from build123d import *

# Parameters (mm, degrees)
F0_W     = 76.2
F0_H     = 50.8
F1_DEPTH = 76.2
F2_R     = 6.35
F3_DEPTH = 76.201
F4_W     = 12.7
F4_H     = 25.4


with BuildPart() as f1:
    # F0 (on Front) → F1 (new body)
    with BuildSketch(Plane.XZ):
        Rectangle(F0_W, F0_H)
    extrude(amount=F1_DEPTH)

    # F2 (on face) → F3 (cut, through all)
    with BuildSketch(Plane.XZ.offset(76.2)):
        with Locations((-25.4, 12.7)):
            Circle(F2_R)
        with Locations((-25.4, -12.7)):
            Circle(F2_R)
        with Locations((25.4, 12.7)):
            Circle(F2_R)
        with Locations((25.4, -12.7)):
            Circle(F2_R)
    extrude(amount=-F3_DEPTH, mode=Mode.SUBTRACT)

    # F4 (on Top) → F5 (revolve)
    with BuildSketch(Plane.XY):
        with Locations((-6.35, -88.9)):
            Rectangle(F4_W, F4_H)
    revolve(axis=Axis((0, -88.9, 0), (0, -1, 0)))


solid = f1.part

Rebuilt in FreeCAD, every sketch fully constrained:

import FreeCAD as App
import Part
import Sketcher
from FreeCAD import Vector
Q = App.Units.Quantity

doc = App.newDocument("Part")
body = doc.addObject("PartDesign::Body", "Body")

sketch1 = body.newObject("Sketcher::SketchObject", "Sketch")
sketch1.AttachmentSupport = (doc.getObject("XZ_Plane"), [""])
sketch1.MapMode = "FlatFace"
sketch1.addGeometry([
    Part.LineSegment(Vector(-38, 25, 0), Vector(-38, -25, 0)),
    Part.LineSegment(Vector(-38, -25, 0), Vector(38, -25, 0)),
    Part.LineSegment(Vector(38, -25, 0), Vector(38, 25, 0)),
    Part.LineSegment(Vector(38, 25, 0), Vector(-38, 25, 0)),
], False)
sketch1.addConstraint([
    Sketcher.Constraint("Coincident", 0, 2, 1, 1),
    Sketcher.Constraint("Coincident", 1, 2, 2, 1),
    Sketcher.Constraint("Coincident", 2, 2, 3, 1),
    Sketcher.Constraint("Coincident", 3, 2, 0, 1),
    Sketcher.Constraint("Vertical", 0),
    Sketcher.Constraint("Horizontal", 1),
    Sketcher.Constraint("Vertical", 2),
    Sketcher.Constraint("Horizontal", 3),
    Sketcher.Constraint("Symmetric", 0, 2, 2, 2, -1, 1),
    Sketcher.Constraint("DistanceX", 1, 1, 1, 2, Q("3 in")),
    Sketcher.Constraint("DistanceY", 0, 2, 0, 1, Q("2 in")),
])
pad1 = body.newObject("PartDesign::Pad", "Pad")
pad1.Profile = sketch1
pad1.Length = Q("3 in")

sketch2 = body.newObject("Sketcher::SketchObject", "Sketch001")
sketch2.AttachmentSupport = (doc.getObject("XZ_Plane"), [""])
sketch2.MapMode = "FlatFace"
sketch2.AttachmentOffset = App.Placement(Vector(0, 0, 3 * 25.4), App.Rotation())
sketch2.addGeometry([
    Part.Circle(Vector(-25, 13, 0), Vector(0, 0, 1), 6),
    Part.Circle(Vector(-25, -13, 0), Vector(0, 0, 1), 6),
    Part.Circle(Vector(25, 13, 0), Vector(0, 0, 1), 6),
    Part.Circle(Vector(25, -13, 0), Vector(0, 0, 1), 6),
], False)
sketch2.addConstraint([
    Sketcher.Constraint("Equal", 0, 1),
    Sketcher.Constraint("Equal", 1, 2),
    Sketcher.Constraint("Equal", 2, 3),
    Sketcher.Constraint("Symmetric", 1, 3, 2, 3, -1, 1),
    Sketcher.Constraint("Symmetric", 0, 3, 3, 3, -1, 1),
    Sketcher.Constraint("Symmetric", 0, 3, 2, 3, -2),
    Sketcher.Constraint("Diameter", 0, Q("0.5 in")),
    Sketcher.Constraint("DistanceX", 0, 3, -1, 1, Q("1 in")),
    Sketcher.Constraint("DistanceY", 1, 3, 0, 3, Q("1 in")),
])
pocket1 = body.newObject("PartDesign::Pocket", "Pocket")
pocket1.Profile = sketch2
pocket1.Type = "ThroughAll"

sketch3 = body.newObject("Sketcher::SketchObject", "Sketch002")
sketch3.AttachmentSupport = (doc.getObject("XY_Plane"), [""])
sketch3.MapMode = "FlatFace"
sketch3.addGeometry([
    Part.LineSegment(Vector(-13, -76, 0), Vector(-13, -102, 0)),
    Part.LineSegment(Vector(-13, -102, 0), Vector(0, -102, 0)),
    Part.LineSegment(Vector(0, -102, 0), Vector(0, -76, 0)),
    Part.LineSegment(Vector(0, -76, 0), Vector(-13, -76, 0)),
], False)
sketch3.addConstraint([
    Sketcher.Constraint("Coincident", 0, 2, 1, 1),
    Sketcher.Constraint("Coincident", 1, 2, 2, 1),
    Sketcher.Constraint("Coincident", 2, 2, 3, 1),
    Sketcher.Constraint("Coincident", 3, 2, 0, 1),
    Sketcher.Constraint("Vertical", 0),
    Sketcher.Constraint("Horizontal", 1),
    Sketcher.Constraint("Vertical", 2),
    Sketcher.Constraint("Horizontal", 3),
    Sketcher.Constraint("PointOnObject", 1, 2, -2),
    Sketcher.Constraint("DistanceY", 0, 2, 0, 1, Q("1 in")),
    Sketcher.Constraint("DistanceX", 1, 1, 1, 2, Q("0.5 in")),
    Sketcher.Constraint("DistanceY", 0, 2, -1, 1, Q("4 in")),
])
revolution = body.newObject("PartDesign::Revolution", "Revolution")
revolution.Profile = sketch3
revolution.ReferenceAxis = (sketch3, ["V_Axis"])
revolution.Angle = 360

doc.recompute()
